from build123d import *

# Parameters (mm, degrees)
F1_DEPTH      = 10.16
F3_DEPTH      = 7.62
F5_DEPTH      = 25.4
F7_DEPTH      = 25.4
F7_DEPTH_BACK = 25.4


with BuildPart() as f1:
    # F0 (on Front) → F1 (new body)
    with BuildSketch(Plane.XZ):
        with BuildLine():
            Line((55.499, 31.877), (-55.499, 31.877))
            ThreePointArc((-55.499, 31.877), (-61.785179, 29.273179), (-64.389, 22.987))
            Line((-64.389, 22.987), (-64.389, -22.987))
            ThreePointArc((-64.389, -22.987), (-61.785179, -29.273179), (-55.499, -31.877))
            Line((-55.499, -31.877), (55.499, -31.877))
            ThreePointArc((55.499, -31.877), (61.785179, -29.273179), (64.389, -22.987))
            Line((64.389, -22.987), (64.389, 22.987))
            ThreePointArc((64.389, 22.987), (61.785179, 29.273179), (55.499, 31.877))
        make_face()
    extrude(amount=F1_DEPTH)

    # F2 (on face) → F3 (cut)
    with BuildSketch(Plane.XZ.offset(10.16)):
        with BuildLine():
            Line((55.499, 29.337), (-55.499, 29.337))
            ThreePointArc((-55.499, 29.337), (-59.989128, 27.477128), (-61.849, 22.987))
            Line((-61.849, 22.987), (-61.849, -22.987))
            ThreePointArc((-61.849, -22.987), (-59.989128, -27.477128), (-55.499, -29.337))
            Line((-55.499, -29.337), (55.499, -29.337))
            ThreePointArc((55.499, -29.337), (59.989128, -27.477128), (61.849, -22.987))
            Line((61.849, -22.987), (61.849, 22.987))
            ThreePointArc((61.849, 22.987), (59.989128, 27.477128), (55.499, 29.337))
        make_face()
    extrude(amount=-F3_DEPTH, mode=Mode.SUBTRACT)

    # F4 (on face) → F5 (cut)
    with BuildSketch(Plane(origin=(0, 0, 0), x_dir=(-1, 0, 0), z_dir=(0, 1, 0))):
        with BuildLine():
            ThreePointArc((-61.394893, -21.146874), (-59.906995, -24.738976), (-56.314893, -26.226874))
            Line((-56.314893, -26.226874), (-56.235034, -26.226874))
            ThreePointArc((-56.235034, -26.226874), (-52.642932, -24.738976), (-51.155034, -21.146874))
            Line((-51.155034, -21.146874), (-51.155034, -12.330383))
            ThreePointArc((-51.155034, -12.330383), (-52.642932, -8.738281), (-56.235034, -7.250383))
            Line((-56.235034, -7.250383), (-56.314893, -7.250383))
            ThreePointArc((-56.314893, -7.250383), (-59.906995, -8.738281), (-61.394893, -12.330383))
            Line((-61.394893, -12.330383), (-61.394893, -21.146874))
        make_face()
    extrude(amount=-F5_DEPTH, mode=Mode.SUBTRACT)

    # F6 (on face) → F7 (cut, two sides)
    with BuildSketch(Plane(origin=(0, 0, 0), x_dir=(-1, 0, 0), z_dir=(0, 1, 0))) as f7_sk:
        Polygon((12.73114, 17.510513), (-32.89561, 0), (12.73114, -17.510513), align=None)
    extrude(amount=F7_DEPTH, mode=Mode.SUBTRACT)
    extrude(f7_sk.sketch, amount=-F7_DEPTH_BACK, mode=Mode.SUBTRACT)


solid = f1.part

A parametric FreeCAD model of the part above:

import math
import FreeCAD as App
import Part
import Sketcher
from FreeCAD import Vector
Q = App.Units.Quantity

doc = App.newDocument("Part")
body = doc.addObject("PartDesign::Body", "Body")

sketch1 = doc.addObject("Sketcher::SketchObject", "Sketch")
body.addObject(sketch1)
sketch1.AttachmentSupport = (doc.XZ_Plane, [""])
sketch1.MapMode = "FlatFace"
sketch1.addGeometry(Part.LineSegment(Vector(55, 32, 0), Vector(-55, 32, 0)), False)
sketch1.addGeometry(Part.ArcOfCircle(Part.Circle(Vector(-55, 23, 0), Vector(0, 0, 1), 9), math.radians(90), math.radians(180)), False)
sketch1.addGeometry(Part.LineSegment(Vector(-64, 23, 0), Vector(-64, -23, 0)), False)
sketch1.addGeometry(Part.ArcOfCircle(Part.Circle(Vector(-55, -23, 0), Vector(0, 0, 1), 9), math.radians(-180), math.radians(-90)), False)
sketch1.addGeometry(Part.LineSegment(Vector(-55, -32, 0), Vector(55, -32, 0)), False)
sketch1.addGeometry(Part.ArcOfCircle(Part.Circle(Vector(55, -23, 0), Vector(0, 0, 1), 9), math.radians(-90), math.radians(0)), False)
sketch1.addGeometry(Part.LineSegment(Vector(64, -23, 0), Vector(64, 23, 0)), False)
sketch1.addGeometry(Part.ArcOfCircle(Part.Circle(Vector(55, 23, 0), Vector(0, 0, 1), 9), math.radians(0), math.radians(90)), False)
sketch1.addConstraint(Sketcher.Constraint("Tangent", 0, 2, 1, 1))
sketch1.addConstraint(Sketcher.Constraint("Tangent", 1, 2, 2, 1))
sketch1.addConstraint(Sketcher.Constraint("Tangent", 2, 2, 3, 1))
sketch1.addConstraint(Sketcher.Constraint("Tangent", 3, 2, 4, 1))
sketch1.addConstraint(Sketcher.Constraint("Tangent", 4, 2, 5, 1))
sketch1.addConstraint(Sketcher.Constraint("Tangent", 5, 2, 6, 1))
sketch1.addConstraint(Sketcher.Constraint("Tangent", 6, 2, 7, 1))
sketch1.addConstraint(Sketcher.Constraint("Tangent", 7, 2, 0, 1))
sketch1.addConstraint(Sketcher.Constraint("Horizontal", 0))
sketch1.addConstraint(Sketcher.Constraint("Vertical", 2))
sketch1.addConstraint(Sketcher.Constraint("Horizontal", 4))
sketch1.addConstraint(Sketcher.Constraint("Vertical", 6))
sketch1.addConstraint(Sketcher.Constraint("Equal", 1, 3))
sketch1.addConstraint(Sketcher.Constraint("Equal", 3, 5))
sketch1.addConstraint(Sketcher.Constraint("Equal", 5, 7))
sketch1.addConstraint(Sketcher.Constraint("Symmetric", 1, 3, 5, 3, -1, 1))
sketch1.addConstraint(Sketcher.Constraint("Radius", 1, Q("0.35 in")))
sketch1.addConstraint(Sketcher.Constraint("DistanceX", 0, 2, 0, 1, Q("4.37 in")))
sketch1.addConstraint(Sketcher.Constraint("DistanceY", 2, 2, 2, 1, Q("1.81 in")))
pad1 = doc.addObject("PartDesign::Pad", "Pad")
body.addObject(pad1)
pad1.Profile = sketch1
pad1.Length = Q("0.4 in")

sketch2 = doc.addObject("Sketcher::SketchObject", "Sketch001")
body.addObject(sketch2)
sketch2.AttachmentSupport = (doc.XZ_Plane, [""])
sketch2.MapMode = "FlatFace"
sketch2.AttachmentOffset = App.Placement(Vector(0, 0, 0.4 * 25.4), App.Rotation())
sketch2.addGeometry(Part.LineSegment(Vector(55, 29, 0), Vector(-55, 29, 0)), False)
sketch2.addGeometry(Part.ArcOfCircle(Part.Circle(Vector(-55, 23, 0), Vector(0, 0, 1), 6), math.radians(90), math.radians(180)), False)
sketch2.addGeometry(Part.LineSegment(Vector(-62, 23, 0), Vector(-62, -23, 0)), False)
sketch2.addGeometry(Part.ArcOfCircle(Part.Circle(Vector(-55, -23, 0), Vector(0, 0, 1), 6), math.radians(-180), math.radians(-90)), False)
sketch2.addGeometry(Part.LineSegment(Vector(-55, -29, 0), Vector(55, -29, 0)), False)
sketch2.addGeometry(Part.ArcOfCircle(Part.Circle(Vector(55, -23, 0), Vector(0, 0, 1), 6), math.radians(-90), math.radians(0)), False)
sketch2.addGeometry(Part.LineSegment(Vector(62, -23, 0), Vector(62, 23, 0)), False)
sketch2.addGeometry(Part.ArcOfCircle(Part.Circle(Vector(55, 23, 0), Vector(0, 0, 1), 6), math.radians(0), math.radians(90)), False)
sketch2.addConstraint(Sketcher.Constraint("Tangent", 0, 2, 1, 1))
sketch2.addConstraint(Sketcher.Constraint("Tangent", 1, 2, 2, 1))
sketch2.addConstraint(Sketcher.Constraint("Tangent", 2, 2, 3, 1))
sketch2.addConstraint(Sketcher.Constraint("Tangent", 3, 2, 4, 1))
sketch2.addConstraint(Sketcher.Constraint("Tangent", 4, 2, 5, 1))
sketch2.addConstraint(Sketcher.Constraint("Tangent", 5, 2, 6, 1))
sketch2.addConstraint(Sketcher.Constraint("Tangent", 6, 2, 7, 1))
sketch2.addConstraint(Sketcher.Constraint("Tangent", 7, 2, 0, 1))
sketch2.addConstraint(Sketcher.Constraint("Horizontal", 0))
sketch2.addConstraint(Sketcher.Constraint("Vertical", 2))
sketch2.addConstraint(Sketcher.Constraint("Horizontal", 4))
sketch2.addConstraint(Sketcher.Constraint("Vertical", 6))
sketch2.addConstraint(Sketcher.Constraint("Equal", 1, 3))
sketch2.addConstraint(Sketcher.Constraint("Equal", 3, 5))
sketch2.addConstraint(Sketcher.Constraint("Equal", 5, 7))
sketch2.addConstraint(Sketcher.Constraint("Symmetric", 1, 3, 5, 3, -1, 1))
sketch2.addConstraint(Sketcher.Constraint("Radius", 1, Q("0.25 in")))
sketch2.addConstraint(Sketcher.Constraint("DistanceX", 0, 2, 0, 1, Q("4.37 in")))
sketch2.addConstraint(Sketcher.Constraint("DistanceY", 2, 2, 2, 1, Q("1.81 in")))
pocket1 = doc.addObject("PartDesign::Pocket", "Pocket")
body.addObject(pocket1)
pocket1.Profile = sketch2
pocket1.Length = Q("0.3 in")

sketch3 = doc.addObject("Sketcher::SketchObject", "Sketch002")
body.addObject(sketch3)
sketch3.AttachmentSupport = (doc.XZ_Plane, [""])
sketch3.MapMode = "FlatFace"
sketch3.addGeometry(Part.ArcOfCircle(Part.Circle(Vector(56.31, -21.15, 0), Vector(0, 0, 1), 5.08), math.radians(-90), math.radians(0)), False)
sketch3.addGeometry(Part.LineSegment(Vector(56.31, -26.23, 0), Vector(56.24, -26.23, 0)), False)
sketch3.addGeometry(Part.ArcOfCircle(Part.Circle(Vector(56.24, -21.15, 0), Vector(0, 0, 1), 5.08), math.radians(-180), math.radians(-90)), False)
sketch3.addGeometry(Part.LineSegment(Vector(51.16, -21.15, 0), Vector(51.16, -12.33, 0)), False)
sketch3.addGeometry(Part.ArcOfCircle(Part.Circle(Vector(56.24, -12.33, 0), Vector(0, 0, 1), 5.08), math.radians(90), math.radians(180)), False)
sketch3.addGeometry(Part.LineSegment(Vector(56.24, -7.25, 0), Vector(56.31, -7.25, 0)), False)
sketch3.addGeometry(Part.ArcOfCircle(Part.Circle(Vector(56.31, -12.33, 0), Vector(0, 0, 1), 5.08), math.radians(0), math.radians(90)), False)
sketch3.addGeometry(Part.LineSegment(Vector(61.39, -12.33, 0), Vector(61.39, -21.15, 0)), False)
sketch3.addConstraint(Sketcher.Constraint("Tangent", 0, 1, 1, 1))
sketch3.addConstraint(Sketcher.Constraint("Tangent", 1, 2, 2, 2))
sketch3.addConstraint(Sketcher.Constraint("Tangent", 2, 1, 3, 1))
sketch3.addConstraint(Sketcher.Constraint("Tangent", 3, 2, 4, 2))
sketch3.addConstraint(Sketcher.Constraint("Tangent", 4, 1, 5, 1))
sketch3.addConstraint(Sketcher.Constraint("Tangent", 5, 2, 6, 2))
sketch3.addConstraint(Sketcher.Constraint("Tangent", 6, 1, 7, 1))
sketch3.addConstraint(Sketcher.Constraint("Tangent", 7, 2, 0, 2))
sketch3.addConstraint(Sketcher.Constraint("Horizontal", 1))
sketch3.addConstraint(Sketcher.Constraint("Vertical", 3))
sketch3.addConstraint(Sketcher.Constraint("Horizontal", 5))
sketch3.addConstraint(Sketcher.Constraint("Vertical", 7))
sketch3.addConstraint(Sketcher.Constraint("Equal", 0, 2))
sketch3.addConstraint(Sketcher.Constraint("Equal", 2, 4))
sketch3.addConstraint(Sketcher.Constraint("Equal", 4, 6))
sketch3.addConstraint(Sketcher.Constraint("Radius", 0, Q("0.2000001 in")))
sketch3.addConstraint(Sketcher.Constraint("DistanceX", 1, 2, 1, 1, 0.079859))
sketch3.addConstraint(Sketcher.Constraint("DistanceY", 3, 1, 3, 2, 8.816491))
sketch3.addConstraint(Sketcher.Constraint("DistanceX", -1, 1, 0, 3, 56.314891))
sketch3.addConstraint(Sketcher.Constraint("DistanceY", 0, 3, -1, 1, 21.146872))
pocket2 = doc.addObject("PartDesign::Pocket", "Pocket001")
body.addObject(pocket2)
pocket2.Profile = sketch3
pocket2.Length = Q("1 in")
pocket2.Reversed = True

sketch4 = doc.addObject("Sketcher::SketchObject", "Sketch003")
body.addObject(sketch4)
sketch4.AttachmentSupport = (doc.XZ_Plane, [""])
sketch4.MapMode = "FlatFace"
sketch4.addGeometry(Part.LineSegment(Vector(-13, 18, 0), Vector(33, 0, 0)), False)
sketch4.addGeometry(Part.LineSegment(Vector(33, 0, 0), Vector(-13, -18, 0)), False)
sketch4.addGeometry(Part.LineSegment(Vector(-13, -18, 0), Vector(-13, 18, 0)), False)
sketch4.addConstraint(Sketcher.Constraint("Coincident", 0, 2, 1, 1))
sketch4.addConstraint(Sketcher.Constraint("Coincident", 1, 2, 2, 1))
sketch4.addConstraint(Sketcher.Constraint("Coincident", 2, 2, 0, 1))
sketch4.addConstraint(Sketcher.Constraint("Vertical", 2))
sketch4.addConstraint(Sketcher.Constraint("PointOnObject", 0, 2, -1))
sketch4.addConstraint(Sketcher.Constraint("Equal", 0, 1))
sketch4.addConstraint(Sketcher.Constraint("DistanceY", 2, 1, 2, 2, 35.021026))
sketch4.addConstraint(Sketcher.Constraint("DistanceX", -1, 1, 0, 2, 32.89561))
sketch4.addConstraint(Sketcher.Constraint("DistanceX", 1, 2, -1, 1, 12.73114))
pocket3 = doc.addObject("PartDesign::Pocket", "Pocket002")
body.addObject(pocket3)
pocket3.Profile = sketch4
pocket3.Type = "ThroughAll"
pocket3.Midplane = True

doc.recompute()
